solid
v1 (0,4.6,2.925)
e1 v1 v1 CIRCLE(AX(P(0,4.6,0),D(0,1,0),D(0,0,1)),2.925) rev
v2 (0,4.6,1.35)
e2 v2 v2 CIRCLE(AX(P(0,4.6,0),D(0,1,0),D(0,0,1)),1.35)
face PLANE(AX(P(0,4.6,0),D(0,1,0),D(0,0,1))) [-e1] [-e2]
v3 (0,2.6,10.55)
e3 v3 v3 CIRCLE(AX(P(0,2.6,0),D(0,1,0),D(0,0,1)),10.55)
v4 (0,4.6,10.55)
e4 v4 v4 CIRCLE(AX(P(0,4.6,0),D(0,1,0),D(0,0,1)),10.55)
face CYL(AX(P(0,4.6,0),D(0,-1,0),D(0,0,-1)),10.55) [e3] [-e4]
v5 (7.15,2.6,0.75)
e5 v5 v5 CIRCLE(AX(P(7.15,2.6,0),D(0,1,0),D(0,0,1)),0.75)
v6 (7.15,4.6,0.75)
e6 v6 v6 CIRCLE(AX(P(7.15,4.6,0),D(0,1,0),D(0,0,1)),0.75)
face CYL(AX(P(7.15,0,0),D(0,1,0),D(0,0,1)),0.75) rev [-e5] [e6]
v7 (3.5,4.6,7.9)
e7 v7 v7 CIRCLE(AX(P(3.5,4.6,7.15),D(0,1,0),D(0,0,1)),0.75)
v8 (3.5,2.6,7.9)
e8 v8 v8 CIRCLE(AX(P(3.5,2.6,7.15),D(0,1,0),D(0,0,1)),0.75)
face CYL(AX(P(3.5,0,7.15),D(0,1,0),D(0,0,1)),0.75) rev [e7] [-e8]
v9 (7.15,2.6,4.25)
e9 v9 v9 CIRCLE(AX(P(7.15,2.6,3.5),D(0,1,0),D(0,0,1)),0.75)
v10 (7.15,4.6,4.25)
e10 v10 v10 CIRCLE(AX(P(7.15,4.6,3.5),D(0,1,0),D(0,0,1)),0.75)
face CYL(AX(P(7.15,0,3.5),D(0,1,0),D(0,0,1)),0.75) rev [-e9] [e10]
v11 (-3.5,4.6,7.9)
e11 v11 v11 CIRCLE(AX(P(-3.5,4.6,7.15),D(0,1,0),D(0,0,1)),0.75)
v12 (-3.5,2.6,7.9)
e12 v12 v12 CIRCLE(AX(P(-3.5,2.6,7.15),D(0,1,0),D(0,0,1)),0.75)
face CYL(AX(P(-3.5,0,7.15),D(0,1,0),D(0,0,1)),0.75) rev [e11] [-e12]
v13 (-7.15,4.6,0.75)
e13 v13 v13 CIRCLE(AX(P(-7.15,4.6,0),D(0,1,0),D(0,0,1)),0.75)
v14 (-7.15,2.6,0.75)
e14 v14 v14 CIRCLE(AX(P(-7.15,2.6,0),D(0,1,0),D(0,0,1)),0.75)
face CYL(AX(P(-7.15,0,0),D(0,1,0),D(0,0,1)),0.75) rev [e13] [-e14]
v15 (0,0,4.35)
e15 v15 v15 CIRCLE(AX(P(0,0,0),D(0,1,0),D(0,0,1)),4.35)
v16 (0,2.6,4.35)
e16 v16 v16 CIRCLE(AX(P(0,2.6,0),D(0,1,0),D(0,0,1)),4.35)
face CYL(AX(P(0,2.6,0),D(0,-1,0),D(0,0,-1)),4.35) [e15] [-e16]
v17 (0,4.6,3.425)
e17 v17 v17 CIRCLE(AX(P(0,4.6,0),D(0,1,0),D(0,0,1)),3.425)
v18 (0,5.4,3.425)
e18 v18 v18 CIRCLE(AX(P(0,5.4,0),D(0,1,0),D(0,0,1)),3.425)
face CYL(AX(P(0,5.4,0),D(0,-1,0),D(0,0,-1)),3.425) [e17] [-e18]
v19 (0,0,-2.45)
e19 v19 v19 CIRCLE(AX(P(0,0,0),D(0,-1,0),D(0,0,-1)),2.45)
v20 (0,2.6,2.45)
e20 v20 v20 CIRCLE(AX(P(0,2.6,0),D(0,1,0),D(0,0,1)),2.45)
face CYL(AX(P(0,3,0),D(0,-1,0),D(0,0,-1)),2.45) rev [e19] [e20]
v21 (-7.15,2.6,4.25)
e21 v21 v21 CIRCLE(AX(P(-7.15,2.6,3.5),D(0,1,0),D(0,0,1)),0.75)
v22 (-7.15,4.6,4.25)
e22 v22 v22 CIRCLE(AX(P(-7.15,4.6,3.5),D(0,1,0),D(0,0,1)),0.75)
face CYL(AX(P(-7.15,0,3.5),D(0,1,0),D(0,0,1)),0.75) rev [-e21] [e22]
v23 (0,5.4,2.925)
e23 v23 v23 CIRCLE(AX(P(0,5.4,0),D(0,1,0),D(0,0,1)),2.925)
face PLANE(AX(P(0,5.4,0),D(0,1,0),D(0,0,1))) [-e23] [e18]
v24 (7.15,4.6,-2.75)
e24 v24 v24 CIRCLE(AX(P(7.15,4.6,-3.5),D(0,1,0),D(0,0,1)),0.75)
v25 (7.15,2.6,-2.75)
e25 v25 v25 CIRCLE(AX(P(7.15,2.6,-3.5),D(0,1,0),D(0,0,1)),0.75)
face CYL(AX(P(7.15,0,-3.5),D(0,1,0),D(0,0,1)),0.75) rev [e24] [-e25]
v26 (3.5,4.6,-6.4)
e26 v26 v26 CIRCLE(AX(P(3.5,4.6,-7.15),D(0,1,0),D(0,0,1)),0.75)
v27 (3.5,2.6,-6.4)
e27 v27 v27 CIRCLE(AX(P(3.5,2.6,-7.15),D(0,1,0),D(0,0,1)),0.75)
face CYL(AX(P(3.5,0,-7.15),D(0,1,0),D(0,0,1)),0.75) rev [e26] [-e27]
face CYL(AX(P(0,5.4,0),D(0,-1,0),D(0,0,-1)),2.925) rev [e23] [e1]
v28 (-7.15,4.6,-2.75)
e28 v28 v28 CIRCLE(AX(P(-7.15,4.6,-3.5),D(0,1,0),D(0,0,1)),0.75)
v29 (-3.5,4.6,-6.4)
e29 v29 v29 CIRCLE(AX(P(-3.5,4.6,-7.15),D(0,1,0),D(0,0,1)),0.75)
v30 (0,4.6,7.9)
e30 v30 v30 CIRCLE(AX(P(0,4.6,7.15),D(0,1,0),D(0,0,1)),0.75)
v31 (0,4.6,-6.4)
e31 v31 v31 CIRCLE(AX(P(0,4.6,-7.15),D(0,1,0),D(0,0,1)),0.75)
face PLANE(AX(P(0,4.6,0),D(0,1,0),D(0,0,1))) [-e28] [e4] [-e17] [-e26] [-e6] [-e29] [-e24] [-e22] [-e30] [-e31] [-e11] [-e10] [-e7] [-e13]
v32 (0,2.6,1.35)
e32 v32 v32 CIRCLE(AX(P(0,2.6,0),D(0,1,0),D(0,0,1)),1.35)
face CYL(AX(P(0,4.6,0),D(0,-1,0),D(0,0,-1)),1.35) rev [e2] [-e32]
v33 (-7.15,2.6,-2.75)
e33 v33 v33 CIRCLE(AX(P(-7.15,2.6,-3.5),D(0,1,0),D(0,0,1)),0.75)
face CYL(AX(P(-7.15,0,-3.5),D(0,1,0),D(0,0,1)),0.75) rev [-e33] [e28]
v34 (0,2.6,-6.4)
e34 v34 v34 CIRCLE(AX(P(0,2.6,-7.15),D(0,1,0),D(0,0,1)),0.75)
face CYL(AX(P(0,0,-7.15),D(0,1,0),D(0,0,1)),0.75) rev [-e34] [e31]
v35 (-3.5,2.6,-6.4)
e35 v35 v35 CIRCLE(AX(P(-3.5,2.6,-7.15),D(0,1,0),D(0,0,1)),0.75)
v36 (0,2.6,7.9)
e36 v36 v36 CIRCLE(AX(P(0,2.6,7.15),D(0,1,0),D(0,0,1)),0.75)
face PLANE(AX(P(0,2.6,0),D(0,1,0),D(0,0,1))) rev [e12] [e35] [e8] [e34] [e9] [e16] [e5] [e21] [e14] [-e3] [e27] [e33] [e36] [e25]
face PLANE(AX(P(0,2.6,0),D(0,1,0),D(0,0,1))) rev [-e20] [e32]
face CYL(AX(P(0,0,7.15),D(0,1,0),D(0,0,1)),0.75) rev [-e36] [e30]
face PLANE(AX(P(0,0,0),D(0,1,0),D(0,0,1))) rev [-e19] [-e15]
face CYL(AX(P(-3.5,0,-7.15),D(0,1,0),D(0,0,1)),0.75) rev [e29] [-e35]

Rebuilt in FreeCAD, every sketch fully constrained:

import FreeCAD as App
import Part
import Sketcher
from FreeCAD import Vector
Q = App.Units.Quantity

doc = App.newDocument("Part")
body = doc.addObject("PartDesign::Body", "Body")

# Sketch on XZ plane
sketch1 = body.newObject("Sketcher::SketchObject", "Sketch")
sketch1.AttachmentSupport = (doc.getObject("XZ_Plane"), [""])
sketch1.MapMode = "FlatFace"
sketch1.addGeometry(Part.Circle(Vector(0, 0, 0), Vector(0, 0, 1), 4.3), False)
sketch1.addConstraint([
    Sketcher.Constraint("Coincident", 0, 3, -1, 1),
    Sketcher.Constraint("Diameter", 0, Q("8.7 mm")),
])
pad1 = body.newObject("PartDesign::Pad", "Pad")
pad1.Profile = sketch1
pad1.Length = 2.6
pad1.Reversed = True

# Sketch on XZ plane
sketch2 = body.newObject("Sketcher::SketchObject", "Sketch001")
sketch2.AttachmentSupport = (doc.getObject("XZ_Plane"), [""])
sketch2.MapMode = "FlatFace"
sketch2.addGeometry(Part.Circle(Vector(0, 0, 0), Vector(0, 0, 1), 2.5), False)
sketch2.addConstraint([
    Sketcher.Constraint("Coincident", 0, 3, -1, 1),
    Sketcher.Constraint("Diameter", 0, Q("4.9 mm")),
])
pocket1 = body.newObject("PartDesign::Pocket", "Pocket")
pocket1.Profile = sketch2
pocket1.Length = 3

# Sketch on XZ plane
sketch3 = body.newObject("Sketcher::SketchObject", "Sketch002")
sketch3.AttachmentSupport = (doc.getObject("XZ_Plane"), [""])
sketch3.MapMode = "FlatFace"
sketch3.AttachmentOffset = App.Placement(Vector(0, 0, -2.6), App.Rotation())
sketch3.addGeometry([
    Part.Circle(Vector(0, 0, 0), Vector(0, 0, 1), 10.6),
    Part.Circle(Vector(0, 0, 0), Vector(0, 0, 1), 1.4),
], False)
sketch3.addConstraint([
    Sketcher.Constraint("Coincident", 0, 3, -1, 1),
    Sketcher.Constraint("Coincident", 1, 3, -1, 1),
    Sketcher.Constraint("Diameter", 0, Q("21.1 mm")),
    Sketcher.Constraint("Diameter", 1, Q("2.7 mm")),
])
pad2 = body.newObject("PartDesign::Pad", "Pad001")
pad2.Profile = sketch3
pad2.Length = 2
pad2.Reversed = True

# Sketch on XZ plane
sketch4 = body.newObject("Sketcher::SketchObject", "Sketch003")
sketch4.AttachmentSupport = (doc.getObject("XZ_Plane"), [""])
sketch4.MapMode = "FlatFace"
sketch4.AttachmentOffset = App.Placement(Vector(0, 0, -4.6), App.Rotation())
sketch4.addGeometry([
    Part.Circle(Vector(0, 0, 0), Vector(0, 0, 1), 3.4),
    Part.Circle(Vector(0, 0, 0), Vector(0, 0, 1), 2.9),
], False)
sketch4.addConstraint([
    Sketcher.Constraint("Coincident", 0, 3, -1, 1),
    Sketcher.Constraint("Coincident", 1, 3, -1, 1),
    Sketcher.Constraint("Diameter", 0, Q("6.85 mm")),
    Sketcher.Constraint("Diameter", 1, Q("5.85 mm")),
])
pad3 = body.newObject("PartDesign::Pad", "Pad002")
pad3.Profile = sketch4
pad3.Length = 0.8
pad3.Reversed = True

# Sketch on XZ plane
sketch5 = body.newObject("Sketcher::SketchObject", "Sketch004")
sketch5.AttachmentSupport = (doc.getObject("XZ_Plane"), [""])
sketch5.MapMode = "FlatFace"
sketch5.AttachmentOffset = App.Placement(Vector(0, 0, -4.6), App.Rotation())
sketch5.addGeometry([
    Part.Circle(Vector(0, -7.2, 0), Vector(0, 0, 1), 0.8),  # 0
    Part.Circle(Vector(3.5, -7.2, 0), Vector(0, 0, 1), 0.8),  # 1
    Part.Circle(Vector(-3.5, -7.2, 0), Vector(0, 0, 1), 0.8),  # 2
    Part.Circle(Vector(7.2, -3.5, 0), Vector(0, 0, 1), 0.8),  # 3
    Part.Circle(Vector(7.2, 0, 0), Vector(0, 0, 1), 0.8),  # 4
    Part.Circle(Vector(7.2, 3.5, 0), Vector(0, 0, 1), 0.8),  # 5
    Part.Circle(Vector(3.5, 7.2, 0), Vector(0, 0, 1), 0.8),  # 6
    Part.Circle(Vector(0, 7.2, 0), Vector(0, 0, 1), 0.8),  # 7
    Part.Circle(Vector(-3.5, 7.2, 0), Vector(0, 0, 1), 0.8),  # 8
    Part.Circle(Vector(-7.2, 3.5, 0), Vector(0, 0, 1), 0.8),  # 9
    Part.Circle(Vector(-7.2, 0, 0), Vector(0, 0, 1), 0.8),  # 10
    Part.Circle(Vector(-7.2, -3.5, 0), Vector(0, 0, 1), 0.8),  # 11
], False)
sketch5.addConstraint([
    Sketcher.Constraint("Equal", 0, 1),
    Sketcher.Constraint("Equal", 1, 2),
    Sketcher.Constraint("Equal", 2, 3),
    Sketcher.Constraint("Equal", 3, 4),
    Sketcher.Constraint("Equal", 4, 5),
    Sketcher.Constraint("Equal", 5, 6),
    Sketcher.Constraint("Equal", 6, 7),
    Sketcher.Constraint("Equal", 7, 8),
    Sketcher.Constraint("Equal", 8, 9),
    Sketcher.Constraint("Equal", 9, 10),
    Sketcher.Constraint("Equal", 10, 11),
    Sketcher.Constraint("Symmetric", 2, 3, 6, 3, -1, 1),
    Sketcher.Constraint("Symmetric", 0, 3, 7, 3, -1, 1),
    Sketcher.Constraint("Symmetric", 1, 3, 8, 3, -1, 1),
    Sketcher.Constraint("Symmetric", 3, 3, 9, 3, -1, 1),
    Sketcher.Constraint("Symmetric", 4, 3, 10, 3, -1, 1),
    Sketcher.Constraint("Symmetric", 5, 3, 11, 3, -1, 1),
    Sketcher.Constraint("Symmetric", 1, 3, 2, 3, -2),
    Sketcher.Constraint("Symmetric", 5, 3, 9, 3, -2),
    Sketcher.Constraint("PointOnObject", 0, 3, -2),
    Sketcher.Constraint("PointOnObject", 4, 3, -1),
    Sketcher.Constraint("Horizontal", 0, 3, 1, 3),
    Sketcher.Constraint("Vertical", 3, 3, 4, 3),
    Sketcher.Constraint("Diameter", 0, Q("1.5 mm")),
    Sketcher.Constraint("DistanceX", 2, 3, 1, 3, Q("7 mm")),
    Sketcher.Constraint("DistanceY", 3, 3, 5, 3, Q("7 mm")),
    Sketcher.Constraint("DistanceY", 1, 3, 6, 3, Q("14.3 mm")),
    Sketcher.Constraint("DistanceX", -1, 1, 3, 3, Q("7.15 mm")),
])
pocket2 = body.newObject("PartDesign::Pocket", "Pocket001")
pocket2.Profile = sketch5
pocket2.Type = "ThroughAll"
pocket2.Reversed = True

doc.recompute()
